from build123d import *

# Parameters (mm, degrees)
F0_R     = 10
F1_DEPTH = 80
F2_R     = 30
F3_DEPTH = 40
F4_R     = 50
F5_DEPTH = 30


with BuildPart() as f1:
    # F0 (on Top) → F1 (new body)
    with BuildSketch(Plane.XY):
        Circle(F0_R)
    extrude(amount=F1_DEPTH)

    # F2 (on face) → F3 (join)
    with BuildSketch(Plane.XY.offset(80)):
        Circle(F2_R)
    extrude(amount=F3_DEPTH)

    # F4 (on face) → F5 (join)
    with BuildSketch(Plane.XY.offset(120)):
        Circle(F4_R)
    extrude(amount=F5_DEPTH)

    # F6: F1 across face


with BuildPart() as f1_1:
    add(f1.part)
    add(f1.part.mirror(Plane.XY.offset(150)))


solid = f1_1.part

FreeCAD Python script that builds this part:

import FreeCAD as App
import Part
import Sketcher

doc = App.newDocument("Part")
body = doc.addObject("PartDesign::Body", "Body")

sketch1 = body.newObject("Sketcher::SketchObject", "Sketch")
sketch1.AttachmentSupport = (doc.getObject("XY_Plane"), [""])
sketch1.MapMode = "FlatFace"
sketch1.addGeometry(Part.Circle(App.Vector(0, 0, 0), App.Vector(0, 0, 1), 10), False)
sketch1.addConstraint([
    Sketcher.Constraint("Coincident", 0, 3, -1, 1),
    Sketcher.Constraint("Diameter", 0, 20.0),
])
pad1 = body.newObject("PartDesign::Pad", "Pad")
pad1.Profile = sketch1
pad1.Length = 80

sketch2 = body.newObject("Sketcher::SketchObject", "Sketch001")
sketch2.AttachmentSupport = (doc.getObject("XY_Plane"), [""])
sketch2.MapMode = "FlatFace"
sketch2.AttachmentOffset = App.Placement(App.Vector(0, 0, 80), App.Rotation())
sketch2.addGeometry(Part.Circle(App.Vector(0, 0, 0), App.Vector(0, 0, 1), 30), False)
sketch2.addConstraint([
    Sketcher.Constraint("Coincident", 0, 3, -1, 1),
    Sketcher.Constraint("Diameter", 0, 60.0),
])
pad2 = body.newObject("PartDesign::Pad", "Pad001")
pad2.Profile = sketch2
pad2.Length = 40

sketch3 = body.newObject("Sketcher::SketchObject", "Sketch002")
sketch3.AttachmentSupport = (doc.getObject("XY_Plane"), [""])
sketch3.MapMode = "FlatFace"
sketch3.AttachmentOffset = App.Placement(App.Vector(0, 0, 120), App.Rotation())
sketch3.addGeometry(Part.Circle(App.Vector(0, 0, 0), App.Vector(0, 0, 1), 50), False)
sketch3.addConstraint([
    Sketcher.Constraint("Coincident", 0, 3, -1, 1),
    Sketcher.Constraint("Diameter", 0, 100.0),
])
pad3 = body.newObject("PartDesign::Pad", "Pad002")
pad3.Profile = sketch3
pad3.Length = 30
body2 = doc.addObject("PartDesign::Body", "Body001")
doc.recompute()

body2.BaseFeature = body
doc.recompute()

mirroring = doc.addObject("Part::Mirroring", "Mirroring")
mirroring.Source = body
mirroring.Base = App.Vector(0, 0, 150)
mirroring.Normal = App.Vector(0, 0, 1)
body3 = doc.addObject("PartDesign::Body", "Body002")
body3.BaseFeature = mirroring
boolean = body2.newObject("PartDesign::Boolean", "Boolean")
boolean.Type = "Fuse"
boolean.addObjects([body3])
doc.recompute()
mirroring.Visibility = False

doc.recompute()
